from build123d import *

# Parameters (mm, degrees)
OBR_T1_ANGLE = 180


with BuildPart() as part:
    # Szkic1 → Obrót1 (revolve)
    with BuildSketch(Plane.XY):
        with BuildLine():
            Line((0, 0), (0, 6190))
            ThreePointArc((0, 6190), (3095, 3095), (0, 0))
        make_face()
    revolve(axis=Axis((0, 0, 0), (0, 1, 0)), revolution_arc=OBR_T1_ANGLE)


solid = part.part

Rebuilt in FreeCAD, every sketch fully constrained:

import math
import FreeCAD as App
import Part
import Sketcher
from FreeCAD import Vector
Q = App.Units.Quantity

doc = App.newDocument("Part")
body = doc.addObject("PartDesign::Body", "Body")

# Sketch on XY plane
sketch1 = body.newObject("Sketcher::SketchObject", "Sketch")
sketch1.AttachmentSupport = (doc.getObject("XY_Plane"), [""])
sketch1.MapMode = "FlatFace"
sketch1.addGeometry([
    Part.LineSegment(Vector(0, 6190, 0), Vector(0, 0, 0)),
    Part.ArcOfCircle(Part.Circle(Vector(0, 3095, 0), Vector(0, 0, 1), 3095), math.radians(-90), math.radians(90)),
], False)
sketch1.addConstraint([
    Sketcher.Constraint("Coincident", 0, 1, 1, 2),
    Sketcher.Constraint("Coincident", 1, 1, 0, 2),
    Sketcher.Constraint("Vertical", 0),
    Sketcher.Constraint("PointOnObject", 1, 3, -2),
    Sketcher.Constraint("PointOnObject", 0, 1, -2),
    Sketcher.Constraint("Radius", 1, Q("3095 mm")),
    Sketcher.Constraint("DistanceY", -1, 1, 1, 3, Q("3095 mm")),
])
revolution = body.newObject("PartDesign::Revolution", "Revolution")
revolution.Profile = sketch1
revolution.ReferenceAxis = (sketch1, ["V_Axis"])
revolution.Angle = 180

doc.recompute()
